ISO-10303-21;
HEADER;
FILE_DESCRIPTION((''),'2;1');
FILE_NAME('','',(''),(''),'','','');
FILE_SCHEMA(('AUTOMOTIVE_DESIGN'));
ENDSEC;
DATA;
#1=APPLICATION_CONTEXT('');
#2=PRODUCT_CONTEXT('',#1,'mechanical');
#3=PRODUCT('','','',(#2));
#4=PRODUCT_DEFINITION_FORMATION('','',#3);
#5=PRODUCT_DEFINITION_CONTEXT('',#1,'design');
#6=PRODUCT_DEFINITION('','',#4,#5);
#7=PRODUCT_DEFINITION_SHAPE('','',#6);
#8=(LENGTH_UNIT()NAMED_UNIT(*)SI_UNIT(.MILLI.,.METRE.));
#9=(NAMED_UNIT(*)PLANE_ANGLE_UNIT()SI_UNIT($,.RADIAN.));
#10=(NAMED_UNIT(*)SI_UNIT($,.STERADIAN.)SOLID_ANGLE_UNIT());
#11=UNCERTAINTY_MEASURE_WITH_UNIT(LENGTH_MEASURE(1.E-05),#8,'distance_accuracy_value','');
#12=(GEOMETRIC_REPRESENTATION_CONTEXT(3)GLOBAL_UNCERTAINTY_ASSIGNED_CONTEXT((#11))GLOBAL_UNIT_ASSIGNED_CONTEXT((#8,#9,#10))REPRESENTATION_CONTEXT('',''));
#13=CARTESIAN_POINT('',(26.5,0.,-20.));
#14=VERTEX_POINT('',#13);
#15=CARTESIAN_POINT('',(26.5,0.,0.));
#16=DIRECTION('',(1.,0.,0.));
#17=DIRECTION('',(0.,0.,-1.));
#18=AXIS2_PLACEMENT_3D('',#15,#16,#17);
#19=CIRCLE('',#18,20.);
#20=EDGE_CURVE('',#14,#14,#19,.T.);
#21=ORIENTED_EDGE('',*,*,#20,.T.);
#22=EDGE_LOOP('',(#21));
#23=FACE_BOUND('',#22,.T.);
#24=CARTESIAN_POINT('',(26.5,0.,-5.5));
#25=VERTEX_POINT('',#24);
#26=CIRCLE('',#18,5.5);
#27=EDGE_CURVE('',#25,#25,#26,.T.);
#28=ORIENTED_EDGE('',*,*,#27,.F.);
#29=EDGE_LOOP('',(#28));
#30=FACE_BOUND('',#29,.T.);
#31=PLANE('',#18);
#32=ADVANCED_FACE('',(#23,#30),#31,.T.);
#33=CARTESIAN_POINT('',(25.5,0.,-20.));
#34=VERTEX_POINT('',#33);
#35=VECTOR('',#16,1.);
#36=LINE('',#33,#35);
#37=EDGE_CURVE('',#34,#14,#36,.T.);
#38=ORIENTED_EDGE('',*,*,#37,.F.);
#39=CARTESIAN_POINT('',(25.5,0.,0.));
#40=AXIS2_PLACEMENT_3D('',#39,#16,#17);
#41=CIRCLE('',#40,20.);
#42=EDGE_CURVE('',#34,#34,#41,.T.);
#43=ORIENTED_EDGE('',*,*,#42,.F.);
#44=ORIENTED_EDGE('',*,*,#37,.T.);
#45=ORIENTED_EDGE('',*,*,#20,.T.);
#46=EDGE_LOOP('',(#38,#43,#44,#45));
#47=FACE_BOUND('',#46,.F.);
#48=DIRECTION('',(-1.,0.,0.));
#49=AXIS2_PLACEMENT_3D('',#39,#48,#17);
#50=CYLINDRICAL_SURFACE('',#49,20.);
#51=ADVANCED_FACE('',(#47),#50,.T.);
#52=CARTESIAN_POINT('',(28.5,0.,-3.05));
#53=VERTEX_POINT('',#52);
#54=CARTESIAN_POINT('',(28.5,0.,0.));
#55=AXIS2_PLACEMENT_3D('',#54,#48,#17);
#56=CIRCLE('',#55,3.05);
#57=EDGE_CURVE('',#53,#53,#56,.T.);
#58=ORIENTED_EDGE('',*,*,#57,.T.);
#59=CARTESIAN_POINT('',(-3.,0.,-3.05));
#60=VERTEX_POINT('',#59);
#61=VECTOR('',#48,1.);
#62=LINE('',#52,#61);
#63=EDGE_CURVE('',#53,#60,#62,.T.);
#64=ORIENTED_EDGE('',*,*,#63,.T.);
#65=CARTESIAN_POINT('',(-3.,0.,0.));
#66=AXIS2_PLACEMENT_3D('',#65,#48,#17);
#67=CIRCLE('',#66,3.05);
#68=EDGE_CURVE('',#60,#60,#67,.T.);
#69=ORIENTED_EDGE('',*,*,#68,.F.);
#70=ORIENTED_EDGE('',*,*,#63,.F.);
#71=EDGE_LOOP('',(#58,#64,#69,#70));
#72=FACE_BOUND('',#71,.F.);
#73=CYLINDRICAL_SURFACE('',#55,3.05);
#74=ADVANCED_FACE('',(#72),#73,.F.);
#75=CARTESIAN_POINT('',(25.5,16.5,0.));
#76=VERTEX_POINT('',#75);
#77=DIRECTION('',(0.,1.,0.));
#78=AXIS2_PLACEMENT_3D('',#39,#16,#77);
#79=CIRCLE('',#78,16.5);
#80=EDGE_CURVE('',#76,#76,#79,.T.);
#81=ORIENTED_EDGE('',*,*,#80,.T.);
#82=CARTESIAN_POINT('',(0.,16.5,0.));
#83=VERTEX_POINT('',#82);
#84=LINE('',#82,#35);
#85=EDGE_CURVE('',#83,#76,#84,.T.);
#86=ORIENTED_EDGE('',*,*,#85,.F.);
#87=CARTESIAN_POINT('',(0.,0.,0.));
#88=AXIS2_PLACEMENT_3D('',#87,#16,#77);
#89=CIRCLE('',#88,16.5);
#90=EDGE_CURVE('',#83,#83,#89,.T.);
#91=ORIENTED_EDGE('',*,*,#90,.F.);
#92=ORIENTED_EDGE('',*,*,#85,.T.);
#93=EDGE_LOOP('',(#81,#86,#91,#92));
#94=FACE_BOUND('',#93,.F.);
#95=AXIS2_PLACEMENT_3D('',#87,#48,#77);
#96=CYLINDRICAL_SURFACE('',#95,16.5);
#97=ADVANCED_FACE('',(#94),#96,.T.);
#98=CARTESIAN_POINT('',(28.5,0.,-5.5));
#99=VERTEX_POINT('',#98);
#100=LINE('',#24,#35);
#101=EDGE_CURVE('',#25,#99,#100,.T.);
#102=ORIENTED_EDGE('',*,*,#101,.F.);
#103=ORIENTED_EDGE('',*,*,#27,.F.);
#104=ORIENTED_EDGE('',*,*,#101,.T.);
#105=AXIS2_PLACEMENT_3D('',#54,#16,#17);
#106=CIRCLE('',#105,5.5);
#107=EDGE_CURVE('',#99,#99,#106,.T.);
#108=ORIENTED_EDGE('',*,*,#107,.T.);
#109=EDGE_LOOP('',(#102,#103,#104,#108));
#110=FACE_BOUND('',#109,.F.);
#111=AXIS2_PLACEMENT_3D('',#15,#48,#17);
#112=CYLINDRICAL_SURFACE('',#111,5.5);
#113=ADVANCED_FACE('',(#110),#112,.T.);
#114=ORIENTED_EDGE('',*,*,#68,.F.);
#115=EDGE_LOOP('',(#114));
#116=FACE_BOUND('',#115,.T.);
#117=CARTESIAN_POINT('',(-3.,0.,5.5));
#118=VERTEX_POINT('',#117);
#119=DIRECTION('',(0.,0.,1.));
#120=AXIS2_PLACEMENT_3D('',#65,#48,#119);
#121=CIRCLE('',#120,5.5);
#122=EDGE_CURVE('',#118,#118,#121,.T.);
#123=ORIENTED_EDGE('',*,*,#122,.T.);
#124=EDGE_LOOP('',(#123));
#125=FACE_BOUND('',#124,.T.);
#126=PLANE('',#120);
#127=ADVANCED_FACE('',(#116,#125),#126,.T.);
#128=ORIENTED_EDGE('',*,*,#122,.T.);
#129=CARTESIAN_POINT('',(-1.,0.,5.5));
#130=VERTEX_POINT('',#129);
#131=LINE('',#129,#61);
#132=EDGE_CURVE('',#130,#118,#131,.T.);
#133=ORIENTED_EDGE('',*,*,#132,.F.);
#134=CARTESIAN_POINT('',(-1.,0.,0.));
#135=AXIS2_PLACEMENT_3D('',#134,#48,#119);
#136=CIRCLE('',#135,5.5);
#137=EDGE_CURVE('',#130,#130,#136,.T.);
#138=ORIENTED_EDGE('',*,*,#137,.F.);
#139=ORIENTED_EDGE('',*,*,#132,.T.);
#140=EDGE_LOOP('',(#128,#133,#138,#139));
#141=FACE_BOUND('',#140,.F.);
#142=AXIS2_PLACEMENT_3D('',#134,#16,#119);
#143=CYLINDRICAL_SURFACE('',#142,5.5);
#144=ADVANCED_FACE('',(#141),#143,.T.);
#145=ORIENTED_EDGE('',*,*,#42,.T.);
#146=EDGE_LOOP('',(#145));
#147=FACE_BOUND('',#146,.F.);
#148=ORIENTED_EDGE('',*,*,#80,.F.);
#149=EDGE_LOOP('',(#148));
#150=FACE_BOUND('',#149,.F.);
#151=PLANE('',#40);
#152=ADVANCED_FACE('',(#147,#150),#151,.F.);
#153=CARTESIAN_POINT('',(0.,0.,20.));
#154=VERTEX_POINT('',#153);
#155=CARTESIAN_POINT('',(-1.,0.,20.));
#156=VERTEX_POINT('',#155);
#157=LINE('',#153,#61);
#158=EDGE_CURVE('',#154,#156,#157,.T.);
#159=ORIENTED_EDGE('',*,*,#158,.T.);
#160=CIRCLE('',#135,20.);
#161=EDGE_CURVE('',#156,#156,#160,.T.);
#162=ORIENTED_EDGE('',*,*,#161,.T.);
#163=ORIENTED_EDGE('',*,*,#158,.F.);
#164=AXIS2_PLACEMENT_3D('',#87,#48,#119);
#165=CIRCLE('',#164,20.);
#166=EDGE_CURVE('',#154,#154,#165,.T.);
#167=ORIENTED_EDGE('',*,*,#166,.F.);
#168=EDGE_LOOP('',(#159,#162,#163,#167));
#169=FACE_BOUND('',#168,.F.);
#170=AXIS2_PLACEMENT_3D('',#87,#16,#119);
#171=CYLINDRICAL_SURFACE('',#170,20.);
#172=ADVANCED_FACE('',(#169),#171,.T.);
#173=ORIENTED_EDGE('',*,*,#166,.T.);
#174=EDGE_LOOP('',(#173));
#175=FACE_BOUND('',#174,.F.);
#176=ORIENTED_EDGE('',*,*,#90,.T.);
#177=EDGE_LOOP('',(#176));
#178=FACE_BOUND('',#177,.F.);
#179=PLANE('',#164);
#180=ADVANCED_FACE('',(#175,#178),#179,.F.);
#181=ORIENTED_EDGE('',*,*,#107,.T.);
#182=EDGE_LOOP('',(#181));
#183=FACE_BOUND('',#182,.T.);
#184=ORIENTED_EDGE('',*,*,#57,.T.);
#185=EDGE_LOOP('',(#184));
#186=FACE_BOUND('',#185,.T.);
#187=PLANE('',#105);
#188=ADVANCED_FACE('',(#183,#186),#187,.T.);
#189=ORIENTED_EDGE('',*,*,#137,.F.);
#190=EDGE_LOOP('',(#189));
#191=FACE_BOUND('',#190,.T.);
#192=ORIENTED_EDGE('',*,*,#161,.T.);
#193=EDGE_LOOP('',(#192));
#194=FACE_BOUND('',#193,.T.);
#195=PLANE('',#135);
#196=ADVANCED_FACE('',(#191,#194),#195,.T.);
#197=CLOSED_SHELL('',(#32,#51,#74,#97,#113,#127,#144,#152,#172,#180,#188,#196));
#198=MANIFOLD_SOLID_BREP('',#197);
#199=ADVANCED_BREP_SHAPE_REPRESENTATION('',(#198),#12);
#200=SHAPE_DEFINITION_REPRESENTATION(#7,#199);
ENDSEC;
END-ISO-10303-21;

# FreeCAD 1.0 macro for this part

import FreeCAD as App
import Part
import Sketcher
from FreeCAD import Vector

doc = App.newDocument("Part")
body = doc.addObject("PartDesign::Body", "Body")

# Sketch on YZ plane
sketch1 = body.newObject("Sketcher::SketchObject", "Sketch")
sketch1.AttachmentSupport = (doc.getObject("YZ_Plane"), [""])
sketch1.MapMode = "FlatFace"
sketch1.addGeometry(Part.Circle(Vector(0, 0, 0), Vector(0, 0, 1), 16), False)
sketch1.addConstraint([
    Sketcher.Constraint("Coincident", 0, 3, -1, 1),
    Sketcher.Constraint("Diameter", 0, 33.0),
])
pad1 = body.newObject("PartDesign::Pad", "Pad")
pad1.Profile = sketch1
pad1.Length = 25.5

# Sketch on YZ plane
sketch2 = body.newObject("Sketcher::SketchObject", "Sketch001")
sketch2.AttachmentSupport = (doc.getObject("YZ_Plane"), [""])
sketch2.MapMode = "FlatFace"
sketch2.AttachmentOffset = App.Placement(Vector(0, 0, 25.5), App.Rotation())
sketch2.addGeometry(Part.Circle(Vector(0, 0, 0), Vector(0, 0, 1), 20), False)
sketch2.addConstraint([
    Sketcher.Constraint("Coincident", 0, 3, -1, 1),
    Sketcher.Constraint("Diameter", 0, 40.0),
])
pad2 = body.newObject("PartDesign::Pad", "Pad001")
pad2.Profile = sketch2
pad2.Length = 1

# Sketch on YZ plane
sketch3 = body.newObject("Sketcher::SketchObject", "Sketch002")
sketch3.AttachmentSupport = (doc.getObject("YZ_Plane"), [""])
sketch3.MapMode = "FlatFace"
sketch3.addGeometry(Part.Circle(Vector(0, 0, 0), Vector(0, 0, 1), 20), False)
sketch3.addConstraint([
    Sketcher.Constraint("Coincident", 0, 3, -1, 1),
    Sketcher.Constraint("Diameter", 0, 40.0),
])
pad3 = body.newObject("PartDesign::Pad", "Pad002")
pad3.Profile = sketch3
pad3.Length = 1
pad3.Reversed = True

# Sketch on YZ plane
sketch4 = body.newObject("Sketcher::SketchObject", "Sketch003")
sketch4.AttachmentSupport = (doc.getObject("YZ_Plane"), [""])
sketch4.MapMode = "FlatFace"
sketch4.AttachmentOffset = App.Placement(Vector(0, 0, 26.5), App.Rotation())
sketch4.addGeometry(Part.Circle(Vector(0, 0, 0), Vector(0, 0, 1), 6), False)
sketch4.addConstraint([
    Sketcher.Constraint("Coincident", 0, 3, -1, 1),
    Sketcher.Constraint("Diameter", 0, 11.0),
])
pad4 = body.newObject("PartDesign::Pad", "Pad003")
pad4.Profile = sketch4
pad4.Length = 2

# Sketch on YZ plane
sketch5 = body.newObject("Sketcher::SketchObject", "Sketch004")
sketch5.AttachmentSupport = (doc.getObject("YZ_Plane"), [""])
sketch5.MapMode = "FlatFace"
sketch5.AttachmentOffset = App.Placement(Vector(0, 0, -1), App.Rotation())
sketch5.addGeometry(Part.Circle(Vector(0, 0, 0), Vector(0, 0, 1), 6), False)
sketch5.addConstraint([
    Sketcher.Constraint("Coincident", 0, 3, -1, 1),
    Sketcher.Constraint("Diameter", 0, 11.0),
])
pad5 = body.newObject("PartDesign::Pad", "Pad004")
pad5.Profile = sketch5
pad5.Length = 2
pad5.Reversed = True

# Sketch on YZ plane
sketch6 = body.newObject("Sketcher::SketchObject", "Sketch005")
sketch6.AttachmentSupport = (doc.getObject("YZ_Plane"), [""])
sketch6.MapMode = "FlatFace"
sketch6.AttachmentOffset = App.Placement(Vector(0, 0, 28.5), App.Rotation())
sketch6.addGeometry(Part.Circle(Vector(0, 0, 0), Vector(0, 0, 1), 3), False)
sketch6.addConstraint([
    Sketcher.Constraint("Coincident", 0, 3, -1, 1),
    Sketcher.Constraint("Diameter", 0, 6.1),
])
doc.recompute()
hole = body.newObject("PartDesign::Hole", "Hole")
hole.Profile = sketch6
hole.ThreadType = "None"
hole.Diameter = 6.1
hole.DepthType = "ThroughAll"

doc.recompute()
